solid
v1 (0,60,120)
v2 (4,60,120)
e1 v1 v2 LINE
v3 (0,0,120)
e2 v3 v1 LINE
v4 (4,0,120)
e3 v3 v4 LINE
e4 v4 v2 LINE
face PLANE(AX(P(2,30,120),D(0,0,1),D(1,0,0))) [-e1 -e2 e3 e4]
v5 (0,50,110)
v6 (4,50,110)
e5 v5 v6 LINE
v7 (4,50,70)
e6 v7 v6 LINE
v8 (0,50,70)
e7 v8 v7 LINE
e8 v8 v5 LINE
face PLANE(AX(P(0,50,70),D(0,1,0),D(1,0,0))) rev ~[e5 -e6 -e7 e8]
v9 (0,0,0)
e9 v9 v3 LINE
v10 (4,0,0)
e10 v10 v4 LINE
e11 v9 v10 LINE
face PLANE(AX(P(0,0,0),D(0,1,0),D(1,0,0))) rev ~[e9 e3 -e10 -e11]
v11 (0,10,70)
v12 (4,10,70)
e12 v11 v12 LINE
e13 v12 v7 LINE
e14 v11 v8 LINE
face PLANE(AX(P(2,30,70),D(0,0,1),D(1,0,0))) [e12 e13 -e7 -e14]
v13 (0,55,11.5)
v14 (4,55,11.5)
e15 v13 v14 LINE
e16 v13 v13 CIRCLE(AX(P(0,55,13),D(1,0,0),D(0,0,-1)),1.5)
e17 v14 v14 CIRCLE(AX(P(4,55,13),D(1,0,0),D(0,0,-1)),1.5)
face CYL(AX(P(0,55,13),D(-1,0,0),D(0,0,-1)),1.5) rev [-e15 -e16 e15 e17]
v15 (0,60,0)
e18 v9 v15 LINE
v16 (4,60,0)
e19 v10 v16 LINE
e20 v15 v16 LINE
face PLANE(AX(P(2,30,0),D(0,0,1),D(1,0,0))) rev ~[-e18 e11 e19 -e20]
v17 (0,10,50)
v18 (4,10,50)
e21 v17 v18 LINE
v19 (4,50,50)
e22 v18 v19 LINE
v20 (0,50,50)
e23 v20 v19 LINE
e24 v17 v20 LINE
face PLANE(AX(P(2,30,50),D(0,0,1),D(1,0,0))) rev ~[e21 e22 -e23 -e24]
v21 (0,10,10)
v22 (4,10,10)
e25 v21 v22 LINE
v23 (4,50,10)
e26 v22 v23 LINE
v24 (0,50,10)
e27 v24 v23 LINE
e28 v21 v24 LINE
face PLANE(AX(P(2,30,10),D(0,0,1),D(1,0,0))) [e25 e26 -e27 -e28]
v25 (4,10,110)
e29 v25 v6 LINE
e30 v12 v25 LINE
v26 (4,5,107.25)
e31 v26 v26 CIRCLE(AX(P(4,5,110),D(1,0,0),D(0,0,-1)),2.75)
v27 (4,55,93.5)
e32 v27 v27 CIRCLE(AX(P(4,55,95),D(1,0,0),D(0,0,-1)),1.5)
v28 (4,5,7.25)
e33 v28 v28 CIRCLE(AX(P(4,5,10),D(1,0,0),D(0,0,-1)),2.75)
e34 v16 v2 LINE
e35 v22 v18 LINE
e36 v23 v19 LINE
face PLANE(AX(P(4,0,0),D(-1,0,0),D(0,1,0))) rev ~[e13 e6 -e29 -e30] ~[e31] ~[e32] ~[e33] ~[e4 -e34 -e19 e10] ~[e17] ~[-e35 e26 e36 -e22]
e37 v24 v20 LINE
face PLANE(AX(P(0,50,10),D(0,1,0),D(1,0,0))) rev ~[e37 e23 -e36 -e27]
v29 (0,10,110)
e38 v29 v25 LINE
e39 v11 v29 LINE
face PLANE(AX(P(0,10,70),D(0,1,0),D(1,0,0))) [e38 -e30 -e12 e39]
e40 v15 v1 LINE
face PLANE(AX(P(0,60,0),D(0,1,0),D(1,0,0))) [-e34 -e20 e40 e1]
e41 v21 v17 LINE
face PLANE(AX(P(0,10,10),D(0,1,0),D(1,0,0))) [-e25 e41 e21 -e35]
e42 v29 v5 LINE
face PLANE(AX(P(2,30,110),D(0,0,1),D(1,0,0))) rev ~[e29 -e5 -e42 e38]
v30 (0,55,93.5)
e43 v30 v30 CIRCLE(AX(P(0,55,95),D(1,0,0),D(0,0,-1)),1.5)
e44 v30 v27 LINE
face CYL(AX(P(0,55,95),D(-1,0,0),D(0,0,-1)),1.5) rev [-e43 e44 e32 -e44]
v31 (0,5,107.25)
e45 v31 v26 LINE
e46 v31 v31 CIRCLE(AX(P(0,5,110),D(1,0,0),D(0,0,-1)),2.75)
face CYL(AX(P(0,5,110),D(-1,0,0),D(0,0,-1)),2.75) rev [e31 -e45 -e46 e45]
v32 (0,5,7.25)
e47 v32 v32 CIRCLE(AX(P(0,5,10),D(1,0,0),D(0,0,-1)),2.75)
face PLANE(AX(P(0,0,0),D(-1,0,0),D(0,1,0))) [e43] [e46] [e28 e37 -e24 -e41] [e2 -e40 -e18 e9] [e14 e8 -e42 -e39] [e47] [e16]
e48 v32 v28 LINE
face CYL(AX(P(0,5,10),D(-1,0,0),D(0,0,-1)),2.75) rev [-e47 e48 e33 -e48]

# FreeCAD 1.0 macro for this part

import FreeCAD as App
import Part
import Sketcher
from FreeCAD import Vector
Q = App.Units.Quantity


def add_polygon(sketch, points):
    """Adds a closed chain of lines whose ends are joined by coincident constraints."""
    first, n = sketch.GeometryCount, len(points)
    for a, b in zip(points, points[1:] + points[:1]):
        sketch.addGeometry(Part.LineSegment(App.Vector(*a, 0), App.Vector(*b, 0)), False)
    for i in range(n):
        sketch.addConstraint(Sketcher.Constraint("Coincident", first + i, 2, first + (i + 1) % n, 1))

doc = App.newDocument("Part")
body = doc.addObject("PartDesign::Body", "Body")

sketch1 = body.newObject("Sketcher::SketchObject", "Sketch")
sketch1.AttachmentSupport = (doc.getObject("XY_Plane"), [""])
sketch1.MapMode = "FlatFace"
sketch1.addGeometry(Part.Circle(Vector(0, 0, 0), Vector(0, 0, 1), 1.5), False)
sketch1.addConstraint([
    Sketcher.Constraint("Coincident", 0, 3, -1, 1),
    Sketcher.Constraint("Diameter", 0, Q("3 mm")),
])
pad1 = body.newObject("PartDesign::Pad", "Pad")
pad1.Profile = sketch1
pad1.Length = 4
body2 = doc.addObject("PartDesign::Body", "Body001")
doc.recompute()

body.Placement = App.Placement(Vector(0, 0, 0), App.Rotation(Vector(0, 1, 0), 90))
boolean = body2.newObject("PartDesign::Boolean", "Boolean")
boolean.Type = "Fuse"
boolean.addObjects([body])
body3 = doc.addObject("PartDesign::Body", "Body002")
doc.recompute()

body2.Placement = App.Placement(Vector(0, 55, 95), App.Rotation(Vector(0, 0, 1), 0))
boolean2 = body3.newObject("PartDesign::Boolean", "Boolean001")
boolean2.Type = "Fuse"
boolean2.addObjects([body2])
body4 = doc.addObject("PartDesign::Body", "Body003")

sketch2 = body4.newObject("Sketcher::SketchObject", "Sketch001")
sketch2.AttachmentSupport = (doc.getObject("XY_Plane003"), [""])
sketch2.MapMode = "FlatFace"
sketch2.addGeometry(Part.Circle(Vector(0, 0, 0), Vector(0, 0, 1), 1.5), False)
sketch2.addConstraint([
    Sketcher.Constraint("Coincident", 0, 3, -1, 1),
    Sketcher.Constraint("Diameter", 0, Q("3 mm")),
])
pad2 = body4.newObject("PartDesign::Pad", "Pad001")
pad2.Profile = sketch2
pad2.Length = 4
body5 = doc.addObject("PartDesign::Body", "Body004")
doc.recompute()

body4.Placement = App.Placement(Vector(0, 0, 0), App.Rotation(Vector(0, 1, 0), 90))
boolean3 = body5.newObject("PartDesign::Boolean", "Boolean002")
boolean3.Type = "Fuse"
boolean3.addObjects([body4])
body6 = doc.addObject("PartDesign::Body", "Body005")
doc.recompute()

body5.Placement = App.Placement(Vector(0, 55, 13), App.Rotation(Vector(0, 0, 1), 0))
boolean4 = body6.newObject("PartDesign::Boolean", "Boolean003")
boolean4.Type = "Fuse"
boolean4.addObjects([body5])
body7 = doc.addObject("PartDesign::Body", "Body006")

sketch3 = body7.newObject("Sketcher::SketchObject", "Sketch002")
sketch3.AttachmentSupport = (doc.getObject("XY_Plane006"), [""])
sketch3.MapMode = "FlatFace"
sketch3.addGeometry(Part.Circle(Vector(0, 0, 0), Vector(0, 0, 1), 2.75), False)
sketch3.addConstraint([
    Sketcher.Constraint("Coincident", 0, 3, -1, 1),
    Sketcher.Constraint("Diameter", 0, Q("5.5 mm")),
])
pad3 = body7.newObject("PartDesign::Pad", "Pad002")
pad3.Profile = sketch3
pad3.Length = 4
body8 = doc.addObject("PartDesign::Body", "Body007")
doc.recompute()

body7.Placement = App.Placement(Vector(0, 0, 0), App.Rotation(Vector(0, 1, 0), 90))
boolean5 = body8.newObject("PartDesign::Boolean", "Boolean004")
boolean5.Type = "Fuse"
boolean5.addObjects([body7])
body9 = doc.addObject("PartDesign::Body", "Body008")
doc.recompute()

body8.Placement = App.Placement(Vector(0, 5, 10), App.Rotation(Vector(0, 0, 1), 0))
boolean6 = body9.newObject("PartDesign::Boolean", "Boolean005")
boolean6.Type = "Fuse"
boolean6.addObjects([body8])
body10 = doc.addObject("PartDesign::Body", "Body009")

sketch4 = body10.newObject("Sketcher::SketchObject", "Sketch003")
sketch4.AttachmentSupport = (doc.getObject("XY_Plane009"), [""])
sketch4.MapMode = "FlatFace"
sketch4.addGeometry(Part.Circle(Vector(0, 0, 0), Vector(0, 0, 1), 2.75), False)
sketch4.addConstraint([
    Sketcher.Constraint("Coincident", 0, 3, -1, 1),
    Sketcher.Constraint("Diameter", 0, Q("5.5 mm")),
])
pad4 = body10.newObject("PartDesign::Pad", "Pad003")
pad4.Profile = sketch4
pad4.Length = 4
body11 = doc.addObject("PartDesign::Body", "Body010")
doc.recompute()

body10.Placement = App.Placement(Vector(0, 0, 0), App.Rotation(Vector(0, 1, 0), 90))
boolean7 = body11.newObject("PartDesign::Boolean", "Boolean006")
boolean7.Type = "Fuse"
boolean7.addObjects([body10])
body12 = doc.addObject("PartDesign::Body", "Body011")
doc.recompute()

body11.Placement = App.Placement(Vector(0, 5, 110), App.Rotation(Vector(0, 0, 1), 0))
boolean8 = body12.newObject("PartDesign::Boolean", "Boolean007")
boolean8.Type = "Fuse"
boolean8.addObjects([body11])
body13 = doc.addObject("PartDesign::Body", "Body012")

sketch5 = body13.newObject("Sketcher::SketchObject", "Sketch004")
sketch5.AttachmentSupport = (doc.getObject("XY_Plane012"), [""])
sketch5.MapMode = "FlatFace"
sketch5.AttachmentOffset = App.Placement(Vector(0, 0, 70), App.Rotation())
add_polygon(sketch5, [(0, 50), (0, 10), (4, 10), (4, 50)])
sketch5.addConstraint([
    Sketcher.Constraint("Vertical", 0),
    Sketcher.Constraint("Horizontal", 1),
    Sketcher.Constraint("Vertical", 2),
    Sketcher.Constraint("Horizontal", 3),
    Sketcher.Constraint("PointOnObject", 0, 2, -2),
    Sketcher.Constraint("DistanceX", 1, 1, 1, 2, Q("4 mm")),
    Sketcher.Constraint("DistanceY", 0, 2, 0, 1, Q("40 mm")),
    Sketcher.Constraint("DistanceY", -1, 1, 0, 2, Q("10 mm")),
])
pad5 = body13.newObject("PartDesign::Pad", "Pad004")
pad5.Profile = sketch5
pad5.Length = 40
body14 = doc.addObject("PartDesign::Body", "Body013")
body14.AllowCompound = True

sketch6 = body14.newObject("Sketcher::SketchObject", "Sketch005")
sketch6.AttachmentSupport = (doc.getObject("XY_Plane013"), [""])
sketch6.MapMode = "FlatFace"
sketch6.AttachmentOffset = App.Placement(Vector(0, 0, 10), App.Rotation())
add_polygon(sketch6, [(0, 50), (0, 10), (4, 10), (4, 50)])
sketch6.addConstraint([
    Sketcher.Constraint("Vertical", 0),
    Sketcher.Constraint("Horizontal", 1),
    Sketcher.Constraint("Vertical", 2),
    Sketcher.Constraint("Horizontal", 3),
    Sketcher.Constraint("PointOnObject", 0, 2, -2),
    Sketcher.Constraint("DistanceX", 1, 1, 1, 2, Q("4 mm")),
    Sketcher.Constraint("DistanceY", 0, 2, 0, 1, Q("40 mm")),
    Sketcher.Constraint("DistanceY", -1, 1, 0, 2, Q("10 mm")),
])
pad6 = body14.newObject("PartDesign::Pad", "Pad005")
pad6.Profile = sketch6
pad6.Length = 40
doc.recompute()

boolean9 = body14.newObject("PartDesign::Boolean", "Boolean008")
boolean9.Type = "Fuse"
boolean9.addObjects([body13])
doc.recompute()

boolean10 = body14.newObject("PartDesign::Boolean", "Boolean009")
boolean10.Type = "Fuse"
boolean10.addObjects([body3])
doc.recompute()

boolean11 = body14.newObject("PartDesign::Boolean", "Boolean010")
boolean11.Type = "Fuse"
boolean11.addObjects([body6])
doc.recompute()

boolean12 = body14.newObject("PartDesign::Boolean", "Boolean011")
boolean12.Type = "Fuse"
boolean12.addObjects([body9])
doc.recompute()

boolean13 = body14.newObject("PartDesign::Boolean", "Boolean012")
boolean13.Type = "Fuse"
boolean13.addObjects([body12])
body15 = doc.addObject("PartDesign::Body", "Body014")

sketch7 = body15.newObject("Sketcher::SketchObject", "Sketch006")
sketch7.AttachmentSupport = (doc.getObject("XY_Plane014"), [""])
sketch7.MapMode = "FlatFace"
add_polygon(sketch7, [(0, 60), (0, 0), (4, 0), (4, 60)])
sketch7.addConstraint([
    Sketcher.Constraint("Vertical", 0),
    Sketcher.Constraint("Horizontal", 1),
    Sketcher.Constraint("Vertical", 2),
    Sketcher.Constraint("Horizontal", 3),
    Sketcher.Constraint("Coincident", 0, 2, -1, 1),
    Sketcher.Constraint("DistanceX", 1, 1, 1, 2, Q("4 mm")),
    Sketcher.Constraint("DistanceY", 0, 2, 0, 1, Q("60 mm")),
])
pad7 = body15.newObject("PartDesign::Pad", "Pad006")
pad7.Profile = sketch7
pad7.Length = 120
doc.recompute()

boolean14 = body15.newObject("PartDesign::Boolean", "Boolean013")
boolean14.Type = "Cut"
boolean14.addObjects([body14])

doc.recompute()
